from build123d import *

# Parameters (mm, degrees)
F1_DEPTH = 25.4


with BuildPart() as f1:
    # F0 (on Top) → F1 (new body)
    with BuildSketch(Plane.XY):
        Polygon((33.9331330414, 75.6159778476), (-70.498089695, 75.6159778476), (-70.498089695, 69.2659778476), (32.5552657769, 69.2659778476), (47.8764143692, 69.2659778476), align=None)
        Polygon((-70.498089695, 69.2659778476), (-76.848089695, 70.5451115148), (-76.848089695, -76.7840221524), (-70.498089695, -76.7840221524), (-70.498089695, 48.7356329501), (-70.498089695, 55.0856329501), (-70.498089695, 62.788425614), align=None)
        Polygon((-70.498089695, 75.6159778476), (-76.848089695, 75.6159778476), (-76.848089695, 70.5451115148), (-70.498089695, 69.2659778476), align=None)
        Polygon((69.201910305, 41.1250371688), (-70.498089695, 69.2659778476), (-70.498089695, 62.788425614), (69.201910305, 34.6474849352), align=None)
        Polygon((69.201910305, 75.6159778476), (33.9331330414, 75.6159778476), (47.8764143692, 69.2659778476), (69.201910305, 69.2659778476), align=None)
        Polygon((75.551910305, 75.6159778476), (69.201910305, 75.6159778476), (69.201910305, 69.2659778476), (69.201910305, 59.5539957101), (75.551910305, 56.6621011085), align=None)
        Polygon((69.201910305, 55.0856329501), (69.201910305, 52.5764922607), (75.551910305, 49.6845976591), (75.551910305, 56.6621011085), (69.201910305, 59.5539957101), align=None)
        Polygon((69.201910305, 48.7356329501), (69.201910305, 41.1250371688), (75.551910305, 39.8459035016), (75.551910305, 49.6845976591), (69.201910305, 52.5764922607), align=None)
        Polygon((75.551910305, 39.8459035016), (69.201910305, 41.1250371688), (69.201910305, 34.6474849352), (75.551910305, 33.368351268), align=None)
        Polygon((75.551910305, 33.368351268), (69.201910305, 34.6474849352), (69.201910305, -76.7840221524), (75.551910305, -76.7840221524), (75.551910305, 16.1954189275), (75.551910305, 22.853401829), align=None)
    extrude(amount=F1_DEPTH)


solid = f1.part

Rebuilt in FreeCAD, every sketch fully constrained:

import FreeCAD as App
import Part
import Sketcher

V = App.Vector
Q = App.Units.Quantity

doc = App.newDocument("Part")
params = doc.addObject("Spreadsheet::Sheet", "Params")
for row, (alias, value) in enumerate([
    ("sketch1_width", "6 in"),
    ("sketch1_width2", "5.5 in"),
    ("pad1_length", "1 in"),
], start=1):
    params.set(f"A{row}", alias)
    params.set(f"B{row}", "=" + value)
    params.setAlias(f"B{row}", alias)

body = doc.addObject("PartDesign::Body", "Body")

# Sketch on XY plane
sketch1 = body.newObject("Sketcher::SketchObject", "Sketch")
sketch1.AttachmentSupport = (doc.getObject("XY_Plane"), [""])
sketch1.MapMode = "FlatFace"
sketch1.addGeometry(Part.LineSegment(V(-70.49809, 62.788426, 0), V(69.20191, 34.647485, 0)), False)
sketch1.addGeometry(Part.LineSegment(V(69.20191, 34.647485, 0), V(69.20191, -76.784022, 0)), False)
sketch1.addGeometry(Part.LineSegment(V(69.20191, -76.784022, 0), V(75.55191, -76.784022, 0)), False)
sketch1.addGeometry(Part.LineSegment(V(75.55191, -76.784022, 0), V(75.55191, 75.615978, 0)), False)
sketch1.addGeometry(Part.LineSegment(V(75.55191, 75.615978, 0), V(-76.84809, 75.615978, 0)), False)
sketch1.addGeometry(Part.LineSegment(V(-76.84809, 75.615978, 0), V(-76.84809, -76.784022, 0)), False)
sketch1.addGeometry(Part.LineSegment(V(-76.84809, -76.784022, 0), V(-70.49809, -76.784022, 0)), False)
sketch1.addGeometry(Part.LineSegment(V(-70.49809, -76.784022, 0), V(-70.49809, 62.788426, 0)), False)
sketch1.addGeometry(Part.LineSegment(V(69.20191, 69.265978, 0), V(69.20191, 41.125037, 0)), False)
sketch1.addGeometry(Part.LineSegment(V(69.20191, 41.125037, 0), V(-70.49809, 69.265978, 0)), False)
sketch1.addGeometry(Part.LineSegment(V(-70.49809, 69.265978, 0), V(69.20191, 69.265978, 0)), False)
sketch1.addConstraint(Sketcher.Constraint("Coincident", 0, 2, 1, 1))
sketch1.addConstraint(Sketcher.Constraint("Coincident", 1, 2, 2, 1))
sketch1.addConstraint(Sketcher.Constraint("Coincident", 2, 2, 3, 1))
sketch1.addConstraint(Sketcher.Constraint("Coincident", 3, 2, 4, 1))
sketch1.addConstraint(Sketcher.Constraint("Coincident", 4, 2, 5, 1))
sketch1.addConstraint(Sketcher.Constraint("Coincident", 5, 2, 6, 1))
sketch1.addConstraint(Sketcher.Constraint("Coincident", 6, 2, 7, 1))
sketch1.addConstraint(Sketcher.Constraint("Coincident", 7, 2, 0, 1))
sketch1.addConstraint(Sketcher.Constraint("Coincident", 8, 2, 9, 1))
sketch1.addConstraint(Sketcher.Constraint("Coincident", 9, 2, 10, 1))
sketch1.addConstraint(Sketcher.Constraint("Coincident", 10, 2, 8, 1))
sketch1.addConstraint(Sketcher.Constraint("Vertical", 1))
sketch1.addConstraint(Sketcher.Constraint("Horizontal", 2))
sketch1.addConstraint(Sketcher.Constraint("Vertical", 3))
sketch1.addConstraint(Sketcher.Constraint("Horizontal", 4))
sketch1.addConstraint(Sketcher.Constraint("Vertical", 5))
sketch1.addConstraint(Sketcher.Constraint("Horizontal", 6))
sketch1.addConstraint(Sketcher.Constraint("Vertical", 7))
sketch1.addConstraint(Sketcher.Constraint("Vertical", 8))
sketch1.addConstraint(Sketcher.Constraint("Horizontal", 10))
sketch1.addConstraint(Sketcher.Constraint("Parallel", 0, 9))
sketch1.addConstraint(Sketcher.Constraint("Horizontal", 2, 2, 5, 2))
sketch1.addConstraint(Sketcher.Constraint("Vertical", 1, 2, 8, 2))
sketch1.addConstraint(Sketcher.Constraint("Vertical", 7, 2, 9, 2))
sketch1.addConstraint(Sketcher.Constraint("Equal", 2, 6))
sketch1.addConstraint(Sketcher.Constraint("Equal", 4, 3))
sketch1.addConstraint(Sketcher.Constraint("DistanceX", 4, 2, 4, 1, Q("6 in")))
sketch1.addConstraint(Sketcher.Constraint("DistanceX", 10, 1, 10, 2, Q("5.5 in")))
sketch1.addConstraint(Sketcher.Constraint("DistanceY", 9, 2, 4, 2, Q("0.25 in")))
sketch1.addConstraint(Sketcher.Constraint("DistanceY", 8, 2, 8, 1, Q("28.140941 mm")))
sketch1.addConstraint(Sketcher.Constraint("DistanceY", 1, 2, 1, 1, Q("111.431507 mm")))
sketch1.addConstraint(Sketcher.Constraint("DistanceX", -1, 1, 0, 2, Q("69.20191 mm")))
sketch1.addConstraint(Sketcher.Constraint("DistanceY", -1, 1, 0, 2, Q("34.647485 mm")))
sketch1.setExpression("Constraints[26]", "Params.sketch1_width")
sketch1.setExpression("Constraints[27]", "Params.sketch1_width2")
pad1 = body.newObject("PartDesign::Pad", "Pad")
pad1.Profile = sketch1
pad1.setExpression("Length", "Params.pad1_length")

doc.recompute()
